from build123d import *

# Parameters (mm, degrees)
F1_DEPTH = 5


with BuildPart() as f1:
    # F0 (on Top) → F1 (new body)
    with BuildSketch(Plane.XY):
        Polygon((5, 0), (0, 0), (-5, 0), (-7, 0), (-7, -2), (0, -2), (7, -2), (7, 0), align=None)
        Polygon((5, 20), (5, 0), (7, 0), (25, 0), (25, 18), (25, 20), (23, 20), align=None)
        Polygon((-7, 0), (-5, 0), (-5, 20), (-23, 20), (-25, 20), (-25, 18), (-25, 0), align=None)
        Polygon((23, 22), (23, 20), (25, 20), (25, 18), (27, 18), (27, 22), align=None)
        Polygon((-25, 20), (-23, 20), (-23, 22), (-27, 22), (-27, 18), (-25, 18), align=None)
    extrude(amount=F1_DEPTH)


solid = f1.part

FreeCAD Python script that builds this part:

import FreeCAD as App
import Part
import Sketcher

V = App.Vector


def add_polygon(sketch, points):
    """Adds a closed chain of lines whose ends are joined by coincident constraints."""
    first, n = sketch.GeometryCount, len(points)
    for a, b in zip(points, points[1:] + points[:1]):
        sketch.addGeometry(Part.LineSegment(App.Vector(*a, 0), App.Vector(*b, 0)), False)
    for i in range(n):
        sketch.addConstraint(Sketcher.Constraint("Coincident", first + i, 2, first + (i + 1) % n, 1))

doc = App.newDocument("Part")
body = doc.addObject("PartDesign::Body", "Body")

# Sketch on XY plane
sketch1 = body.newObject("Sketcher::SketchObject", "Sketch")
sketch1.AttachmentSupport = (doc.getObject("XY_Plane"), [""])
sketch1.MapMode = "FlatFace"
add_polygon(sketch1, [(-7, 0), (-7, -2), (7, -2), (7, 0), (25, 0), (25, 18), (27, 18), (27, 22), (23, 22), (23, 20), (5, 20), (5, 0), (-5, 0), (-5, 20), (-23, 20), (-23, 22), (-27, 22), (-27, 18), (-25, 18), (-25, 0)])  # lines 0-19
sketch1.addConstraint(Sketcher.Constraint("Vertical", 0))
sketch1.addConstraint(Sketcher.Constraint("Horizontal", 1))
sketch1.addConstraint(Sketcher.Constraint("Vertical", 2))
sketch1.addConstraint(Sketcher.Constraint("Horizontal", 3))
sketch1.addConstraint(Sketcher.Constraint("Vertical", 4))
sketch1.addConstraint(Sketcher.Constraint("Horizontal", 5))
sketch1.addConstraint(Sketcher.Constraint("Vertical", 6))
sketch1.addConstraint(Sketcher.Constraint("Horizontal", 7))
sketch1.addConstraint(Sketcher.Constraint("Vertical", 8))
sketch1.addConstraint(Sketcher.Constraint("Horizontal", 9))
sketch1.addConstraint(Sketcher.Constraint("Vertical", 10))
sketch1.addConstraint(Sketcher.Constraint("Horizontal", 11))
sketch1.addConstraint(Sketcher.Constraint("Vertical", 12))
sketch1.addConstraint(Sketcher.Constraint("Horizontal", 13))
sketch1.addConstraint(Sketcher.Constraint("Vertical", 14))
sketch1.addConstraint(Sketcher.Constraint("Horizontal", 15))
sketch1.addConstraint(Sketcher.Constraint("Vertical", 16))
sketch1.addConstraint(Sketcher.Constraint("Horizontal", 17))
sketch1.addConstraint(Sketcher.Constraint("Vertical", 18))
sketch1.addConstraint(Sketcher.Constraint("Horizontal", 19))
sketch1.addConstraint(Sketcher.Constraint("Symmetric", 10, 2, 11, 2, -1, 1))
sketch1.addConstraint(Sketcher.Constraint("Symmetric", 3, 2, 18, 2, -1, 1))
sketch1.addConstraint(Sketcher.Constraint("Symmetric", 8, 2, 13, 2, -2))
sketch1.addConstraint(Sketcher.Constraint("Symmetric", 6, 2, 15, 2, -2))
sketch1.addConstraint(Sketcher.Constraint("Symmetric", 2, 2, 19, 2, -2))
sketch1.addConstraint(Sketcher.Constraint("Horizontal", 5, 2, 16, 2))
sketch1.addConstraint(Sketcher.Constraint("Equal", 3, 9))
sketch1.addConstraint(Sketcher.Constraint("Equal", 17, 0))
sketch1.addConstraint(Sketcher.Constraint("Equal", 19, 4))
sketch1.addConstraint(Sketcher.Constraint("Equal", 15, 6))
sketch1.addConstraint(Sketcher.Constraint("Equal", 2, 8))
sketch1.addConstraint(Sketcher.Constraint("DistanceX", 1, 1, 1, 2, 14.0))
sketch1.addConstraint(Sketcher.Constraint("DistanceX", 3, 1, 3, 2, 18.0))
sketch1.addConstraint(Sketcher.Constraint("DistanceX", 5, 1, 5, 2, 2.0))
sketch1.addConstraint(Sketcher.Constraint("DistanceX", 7, 2, 7, 1, 4.0))
pad1 = body.newObject("PartDesign::Pad", "Pad")
pad1.Profile = sketch1
pad1.Length = 5

doc.recompute()
